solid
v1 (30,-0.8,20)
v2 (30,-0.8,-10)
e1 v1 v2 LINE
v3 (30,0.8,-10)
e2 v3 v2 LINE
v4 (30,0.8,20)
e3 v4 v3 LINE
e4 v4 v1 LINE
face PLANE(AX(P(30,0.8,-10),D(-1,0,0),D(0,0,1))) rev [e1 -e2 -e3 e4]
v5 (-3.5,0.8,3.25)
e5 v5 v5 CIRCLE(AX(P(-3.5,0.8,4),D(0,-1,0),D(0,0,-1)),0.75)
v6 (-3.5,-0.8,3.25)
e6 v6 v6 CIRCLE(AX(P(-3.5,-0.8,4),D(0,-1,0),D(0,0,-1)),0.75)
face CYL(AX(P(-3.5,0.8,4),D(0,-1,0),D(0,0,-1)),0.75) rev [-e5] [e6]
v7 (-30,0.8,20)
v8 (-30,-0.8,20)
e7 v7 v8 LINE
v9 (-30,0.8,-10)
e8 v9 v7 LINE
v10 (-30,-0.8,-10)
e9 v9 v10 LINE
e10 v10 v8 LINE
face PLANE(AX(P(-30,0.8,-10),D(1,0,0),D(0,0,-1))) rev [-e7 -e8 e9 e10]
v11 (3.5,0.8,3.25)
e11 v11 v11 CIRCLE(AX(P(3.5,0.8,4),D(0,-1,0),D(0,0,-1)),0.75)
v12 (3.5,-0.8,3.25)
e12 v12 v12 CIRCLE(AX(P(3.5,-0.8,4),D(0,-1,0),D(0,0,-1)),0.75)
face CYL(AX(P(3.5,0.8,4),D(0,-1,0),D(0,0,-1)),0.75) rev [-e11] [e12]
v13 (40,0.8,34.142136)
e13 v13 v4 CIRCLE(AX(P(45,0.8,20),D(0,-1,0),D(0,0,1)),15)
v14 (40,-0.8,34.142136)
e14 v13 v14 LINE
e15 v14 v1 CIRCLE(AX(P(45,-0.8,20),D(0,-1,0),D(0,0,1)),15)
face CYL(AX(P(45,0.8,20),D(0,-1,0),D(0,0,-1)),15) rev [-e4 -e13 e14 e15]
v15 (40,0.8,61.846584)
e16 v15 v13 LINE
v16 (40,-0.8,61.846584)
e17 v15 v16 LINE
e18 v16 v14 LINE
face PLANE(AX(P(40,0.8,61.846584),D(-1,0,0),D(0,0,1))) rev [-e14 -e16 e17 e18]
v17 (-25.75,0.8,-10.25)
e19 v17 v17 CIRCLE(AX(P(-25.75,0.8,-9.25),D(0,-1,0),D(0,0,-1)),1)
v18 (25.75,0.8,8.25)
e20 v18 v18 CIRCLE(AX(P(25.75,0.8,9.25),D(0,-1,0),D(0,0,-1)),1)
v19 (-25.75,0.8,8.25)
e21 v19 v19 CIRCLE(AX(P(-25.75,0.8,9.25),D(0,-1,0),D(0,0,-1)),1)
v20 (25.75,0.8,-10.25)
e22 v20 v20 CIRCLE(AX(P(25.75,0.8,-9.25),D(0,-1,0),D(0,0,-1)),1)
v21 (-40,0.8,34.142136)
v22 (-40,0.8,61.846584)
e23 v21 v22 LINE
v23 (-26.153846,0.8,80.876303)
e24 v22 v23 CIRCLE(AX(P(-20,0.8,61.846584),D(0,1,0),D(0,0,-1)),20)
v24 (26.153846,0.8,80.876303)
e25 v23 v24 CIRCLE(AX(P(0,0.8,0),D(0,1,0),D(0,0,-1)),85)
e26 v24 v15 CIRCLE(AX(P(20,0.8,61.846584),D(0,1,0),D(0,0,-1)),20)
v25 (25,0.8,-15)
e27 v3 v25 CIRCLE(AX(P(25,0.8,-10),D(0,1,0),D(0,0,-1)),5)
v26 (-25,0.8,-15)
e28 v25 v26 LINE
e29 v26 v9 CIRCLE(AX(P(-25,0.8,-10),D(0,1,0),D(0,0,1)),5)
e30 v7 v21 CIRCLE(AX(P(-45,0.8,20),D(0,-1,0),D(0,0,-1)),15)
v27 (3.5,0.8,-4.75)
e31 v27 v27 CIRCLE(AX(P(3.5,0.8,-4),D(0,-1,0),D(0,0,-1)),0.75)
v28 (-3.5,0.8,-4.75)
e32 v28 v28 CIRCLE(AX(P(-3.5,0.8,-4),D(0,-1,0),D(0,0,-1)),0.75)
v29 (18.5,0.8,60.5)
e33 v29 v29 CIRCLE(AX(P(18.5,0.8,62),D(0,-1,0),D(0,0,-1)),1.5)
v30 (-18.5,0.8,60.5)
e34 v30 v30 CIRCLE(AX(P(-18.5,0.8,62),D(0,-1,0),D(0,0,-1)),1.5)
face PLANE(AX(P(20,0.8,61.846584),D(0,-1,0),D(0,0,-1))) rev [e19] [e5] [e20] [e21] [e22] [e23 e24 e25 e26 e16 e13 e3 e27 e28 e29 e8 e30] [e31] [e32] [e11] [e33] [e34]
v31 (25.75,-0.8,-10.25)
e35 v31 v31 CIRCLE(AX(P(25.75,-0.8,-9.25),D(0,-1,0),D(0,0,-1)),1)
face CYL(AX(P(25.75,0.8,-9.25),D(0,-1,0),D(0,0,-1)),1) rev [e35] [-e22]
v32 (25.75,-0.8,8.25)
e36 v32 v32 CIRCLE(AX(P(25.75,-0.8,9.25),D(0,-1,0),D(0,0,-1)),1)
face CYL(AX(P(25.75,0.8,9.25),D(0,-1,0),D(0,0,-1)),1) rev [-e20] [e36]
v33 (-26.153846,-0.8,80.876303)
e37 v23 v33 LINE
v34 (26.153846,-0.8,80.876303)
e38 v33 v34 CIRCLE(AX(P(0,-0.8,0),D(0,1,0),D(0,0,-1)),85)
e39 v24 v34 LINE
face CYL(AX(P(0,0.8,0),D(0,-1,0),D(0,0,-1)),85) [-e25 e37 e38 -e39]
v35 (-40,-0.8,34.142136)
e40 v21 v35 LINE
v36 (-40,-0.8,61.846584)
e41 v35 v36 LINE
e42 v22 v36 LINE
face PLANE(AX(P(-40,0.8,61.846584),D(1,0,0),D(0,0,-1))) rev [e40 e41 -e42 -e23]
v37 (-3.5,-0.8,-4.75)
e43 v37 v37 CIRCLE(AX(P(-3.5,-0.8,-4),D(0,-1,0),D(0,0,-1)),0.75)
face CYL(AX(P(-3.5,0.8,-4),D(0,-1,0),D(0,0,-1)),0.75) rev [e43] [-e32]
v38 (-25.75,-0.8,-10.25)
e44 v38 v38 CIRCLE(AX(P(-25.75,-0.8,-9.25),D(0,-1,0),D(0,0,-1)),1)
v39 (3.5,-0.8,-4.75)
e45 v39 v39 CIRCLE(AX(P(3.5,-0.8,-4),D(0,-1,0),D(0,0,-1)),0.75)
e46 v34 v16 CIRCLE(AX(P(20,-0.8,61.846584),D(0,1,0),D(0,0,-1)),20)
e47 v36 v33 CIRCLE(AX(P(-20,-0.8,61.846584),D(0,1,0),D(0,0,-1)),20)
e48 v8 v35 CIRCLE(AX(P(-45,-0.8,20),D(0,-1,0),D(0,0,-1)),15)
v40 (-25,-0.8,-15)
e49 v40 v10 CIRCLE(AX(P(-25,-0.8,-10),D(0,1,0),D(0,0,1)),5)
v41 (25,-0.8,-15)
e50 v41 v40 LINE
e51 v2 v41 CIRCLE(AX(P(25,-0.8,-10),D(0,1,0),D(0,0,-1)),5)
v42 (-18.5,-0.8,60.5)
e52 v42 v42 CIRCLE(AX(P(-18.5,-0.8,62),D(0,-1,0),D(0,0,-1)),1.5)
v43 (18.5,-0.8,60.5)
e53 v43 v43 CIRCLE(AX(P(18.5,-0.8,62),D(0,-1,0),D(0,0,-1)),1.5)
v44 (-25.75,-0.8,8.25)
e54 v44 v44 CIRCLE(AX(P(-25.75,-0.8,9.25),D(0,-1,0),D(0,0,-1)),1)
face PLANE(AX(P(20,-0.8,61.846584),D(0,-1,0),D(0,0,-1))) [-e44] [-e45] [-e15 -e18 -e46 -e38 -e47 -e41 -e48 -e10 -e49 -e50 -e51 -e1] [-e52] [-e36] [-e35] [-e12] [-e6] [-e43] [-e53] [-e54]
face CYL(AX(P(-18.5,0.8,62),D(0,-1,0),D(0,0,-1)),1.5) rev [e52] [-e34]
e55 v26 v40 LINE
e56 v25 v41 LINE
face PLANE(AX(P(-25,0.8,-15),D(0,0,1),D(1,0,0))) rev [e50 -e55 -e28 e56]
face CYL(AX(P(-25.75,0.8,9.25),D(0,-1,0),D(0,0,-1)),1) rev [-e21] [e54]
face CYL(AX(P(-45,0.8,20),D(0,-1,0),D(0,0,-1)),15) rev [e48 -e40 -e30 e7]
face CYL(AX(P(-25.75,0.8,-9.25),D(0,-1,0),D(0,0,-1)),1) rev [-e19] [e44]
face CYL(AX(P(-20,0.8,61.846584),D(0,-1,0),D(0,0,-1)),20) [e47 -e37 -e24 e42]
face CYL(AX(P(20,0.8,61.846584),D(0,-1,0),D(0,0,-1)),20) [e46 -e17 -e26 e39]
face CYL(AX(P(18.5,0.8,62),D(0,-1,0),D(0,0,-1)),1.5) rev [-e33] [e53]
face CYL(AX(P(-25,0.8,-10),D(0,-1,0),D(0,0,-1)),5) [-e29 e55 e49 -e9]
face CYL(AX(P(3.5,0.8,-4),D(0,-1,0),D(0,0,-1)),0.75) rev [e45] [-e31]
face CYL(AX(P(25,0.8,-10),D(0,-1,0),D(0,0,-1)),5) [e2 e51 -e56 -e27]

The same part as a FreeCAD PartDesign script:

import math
import FreeCAD as App
import Part
import Sketcher
from FreeCAD import Vector
Q = App.Units.Quantity

doc = App.newDocument("Part")
body = doc.addObject("PartDesign::Body", "Body")

# Sketch on XZ plane
sketch1 = body.newObject("Sketcher::SketchObject", "Sketch")
sketch1.AttachmentSupport = (doc.getObject("XZ_Plane"), [""])
sketch1.MapMode = "FlatFace"
sketch1.addGeometry([
    Part.LineSegment(Vector(25, -15, 0), Vector(-25, -15, 0)),  # 0
    Part.ArcOfCircle(Part.Circle(Vector(-25, -10, 0), Vector(0, 0, 1), 5), math.radians(180), math.radians(270)),  # 1
    Part.LineSegment(Vector(-30, -10, 0), Vector(-30, 20, 0)),  # 2
    Part.ArcOfCircle(Part.Circle(Vector(-45, 20, 0), Vector(0, 0, 1), 15), math.radians(0), math.radians(71)),  # 3
    Part.LineSegment(Vector(-40, 34, 0), Vector(-40, 62, 0)),  # 4
    Part.ArcOfCircle(Part.Circle(Vector(-20, 62, 0), Vector(0, 0, 1), 20), math.radians(108), math.radians(180)),  # 5
    Part.ArcOfCircle(Part.Circle(Vector(0, 0, 0), Vector(0, 0, 1), 85), math.radians(72), math.radians(108)),  # 6
    Part.ArcOfCircle(Part.Circle(Vector(20, 62, 0), Vector(0, 0, 1), 20), math.radians(0), math.radians(72)),  # 7
    Part.LineSegment(Vector(40, 62, 0), Vector(40, 34, 0)),  # 8
    Part.ArcOfCircle(Part.Circle(Vector(45, 20, 0), Vector(0, 0, 1), 15), math.radians(109), math.radians(180)),  # 9
    Part.LineSegment(Vector(30, 20, 0), Vector(30, -10, 0)),  # 10
    Part.ArcOfCircle(Part.Circle(Vector(25, -10, 0), Vector(0, 0, 1), 5), math.radians(-90), math.radians(0)),  # 11
], False)
sketch1.addConstraint([
    Sketcher.Constraint("Tangent", 0, 2, 1, 2),
    Sketcher.Constraint("Tangent", 1, 1, 2, 1),
    Sketcher.Constraint("Tangent", 2, 2, 3, 1),
    Sketcher.Constraint("Coincident", 3, 2, 4, 1),
    Sketcher.Constraint("Tangent", 4, 2, 5, 2),
    Sketcher.Constraint("Tangent", 5, 1, 6, 2),
    Sketcher.Constraint("Tangent", 6, 1, 7, 2),
    Sketcher.Constraint("Tangent", 7, 1, 8, 1),
    Sketcher.Constraint("Coincident", 8, 2, 9, 1),
    Sketcher.Constraint("Tangent", 9, 2, 10, 1),
    Sketcher.Constraint("Tangent", 10, 2, 11, 2),
    Sketcher.Constraint("Tangent", 11, 1, 0, 1),
    Sketcher.Constraint("Horizontal", 0),
    Sketcher.Constraint("Vertical", 2),
    Sketcher.Constraint("Vertical", 4),
    Sketcher.Constraint("Vertical", 8),
    Sketcher.Constraint("Vertical", 10),
    Sketcher.Constraint("Coincident", 6, 3, -1, 1),
    Sketcher.Constraint("Equal", 5, 7),
    Sketcher.Constraint("Equal", 3, 9),
    Sketcher.Constraint("Equal", 1, 11),
    Sketcher.Constraint("Symmetric", 3, 3, 9, 3, -2),
    Sketcher.Constraint("Horizontal", 5, 3, 7, 3),
    Sketcher.Constraint("Radius", 1, Q("5 mm")),
    Sketcher.Constraint("Radius", 3, Q("15 mm")),
    Sketcher.Constraint("Radius", 5, Q("20 mm")),
    Sketcher.Constraint("Radius", 6, Q("85 mm")),
    Sketcher.Constraint("DistanceX", 0, 2, 0, 1, Q("50 mm")),
    Sketcher.Constraint("DistanceY", 2, 1, 2, 2, Q("30 mm")),
    Sketcher.Constraint("DistanceY", 1, 3, -1, 1, Q("10 mm")),
    Sketcher.Constraint("DistanceX", 5, 3, -1, 1, Q("20 mm")),
])
pad1 = body.newObject("PartDesign::Pad", "Pad")
pad1.Profile = sketch1
pad1.Length = 1.6
pad1.Midplane = True

# Sketch on XZ plane
sketch2 = body.newObject("Sketcher::SketchObject", "Sketch001")
sketch2.AttachmentSupport = (doc.getObject("XZ_Plane"), [""])
sketch2.MapMode = "FlatFace"
sketch2.AttachmentOffset = App.Placement(Vector(0, 0, 0.8), App.Rotation())
sketch2.addGeometry([
    Part.Circle(Vector(-25.8, -9.2, 0), Vector(0, 0, 1), 1),
    Part.Circle(Vector(-25.8, 9.2, 0), Vector(0, 0, 1), 1),
    Part.Circle(Vector(25.8, 9.2, 0), Vector(0, 0, 1), 1),
    Part.Circle(Vector(25.8, -9.2, 0), Vector(0, 0, 1), 1),
], False)
sketch2.addConstraint([
    Sketcher.Constraint("Equal", 0, 1),
    Sketcher.Constraint("Equal", 1, 2),
    Sketcher.Constraint("Equal", 2, 3),
    Sketcher.Constraint("Symmetric", 0, 3, 2, 3, -1, 1),
    Sketcher.Constraint("Symmetric", 1, 3, 3, 3, -1, 1),
    Sketcher.Constraint("Symmetric", 1, 3, 2, 3, -2),
    Sketcher.Constraint("Diameter", 0, Q("2 mm")),
    Sketcher.Constraint("DistanceY", 0, 3, 1, 3, Q("18.5 mm")),
    Sketcher.Constraint("DistanceX", 1, 3, 2, 3, Q("51.5 mm")),
])
pocket1 = body.newObject("PartDesign::Pocket", "Pocket")
pocket1.Profile = sketch2
pocket1.Type = "ThroughAll"

# Sketch on XZ plane
sketch3 = body.newObject("Sketcher::SketchObject", "Sketch002")
sketch3.AttachmentSupport = (doc.getObject("XZ_Plane"), [""])
sketch3.MapMode = "FlatFace"
sketch3.AttachmentOffset = App.Placement(Vector(0, 0, 0.8), App.Rotation())
sketch3.addGeometry([
    Part.Circle(Vector(-3.5, 4, 0), Vector(0, 0, 1), 0.8),
    Part.Circle(Vector(3.5, 4, 0), Vector(0, 0, 1), 0.8),
    Part.Circle(Vector(-3.5, -4, 0), Vector(0, 0, 1), 0.8),
    Part.Circle(Vector(3.5, -4, 0), Vector(0, 0, 1), 0.8),
], False)
sketch3.addConstraint([
    Sketcher.Constraint("Equal", 0, 1),
    Sketcher.Constraint("Equal", 1, 2),
    Sketcher.Constraint("Equal", 2, 3),
    Sketcher.Constraint("Symmetric", 1, 3, 2, 3, -1, 1),
    Sketcher.Constraint("Symmetric", 0, 3, 3, 3, -1, 1),
    Sketcher.Constraint("Symmetric", 0, 3, 1, 3, -2),
    Sketcher.Constraint("Diameter", 0, Q("1.5 mm")),
    Sketcher.Constraint("DistanceY", -1, 1, 0, 3, Q("4 mm")),
    Sketcher.Constraint("DistanceX", 0, 3, 1, 3, Q("7 mm")),
])
pocket2 = body.newObject("PartDesign::Pocket", "Pocket001")
pocket2.Profile = sketch3
pocket2.Type = "ThroughAll"

# Sketch on XZ plane
sketch4 = body.newObject("Sketcher::SketchObject", "Sketch003")
sketch4.AttachmentSupport = (doc.getObject("XZ_Plane"), [""])
sketch4.MapMode = "FlatFace"
sketch4.AttachmentOffset = App.Placement(Vector(0, 0, 0.8), App.Rotation())
sketch4.addGeometry([
    Part.Circle(Vector(18.5, 62, 0), Vector(0, 0, 1), 1.5),
    Part.Circle(Vector(-18.5, 62, 0), Vector(0, 0, 1), 1.5),
], False)
sketch4.addConstraint([
    Sketcher.Constraint("Equal", 0, 1),
    Sketcher.Constraint("Symmetric", 0, 3, 1, 3, -2),
    Sketcher.Constraint("Diameter", 0, Q("3 mm")),
    Sketcher.Constraint("DistanceY", -1, 1, 0, 3, Q("62 mm")),
    Sketcher.Constraint("DistanceX", 1, 3, 0, 3, Q("37 mm")),
])
pocket3 = body.newObject("PartDesign::Pocket", "Pocket002")
pocket3.Profile = sketch4
pocket3.Type = "ThroughAll"

doc.recompute()
